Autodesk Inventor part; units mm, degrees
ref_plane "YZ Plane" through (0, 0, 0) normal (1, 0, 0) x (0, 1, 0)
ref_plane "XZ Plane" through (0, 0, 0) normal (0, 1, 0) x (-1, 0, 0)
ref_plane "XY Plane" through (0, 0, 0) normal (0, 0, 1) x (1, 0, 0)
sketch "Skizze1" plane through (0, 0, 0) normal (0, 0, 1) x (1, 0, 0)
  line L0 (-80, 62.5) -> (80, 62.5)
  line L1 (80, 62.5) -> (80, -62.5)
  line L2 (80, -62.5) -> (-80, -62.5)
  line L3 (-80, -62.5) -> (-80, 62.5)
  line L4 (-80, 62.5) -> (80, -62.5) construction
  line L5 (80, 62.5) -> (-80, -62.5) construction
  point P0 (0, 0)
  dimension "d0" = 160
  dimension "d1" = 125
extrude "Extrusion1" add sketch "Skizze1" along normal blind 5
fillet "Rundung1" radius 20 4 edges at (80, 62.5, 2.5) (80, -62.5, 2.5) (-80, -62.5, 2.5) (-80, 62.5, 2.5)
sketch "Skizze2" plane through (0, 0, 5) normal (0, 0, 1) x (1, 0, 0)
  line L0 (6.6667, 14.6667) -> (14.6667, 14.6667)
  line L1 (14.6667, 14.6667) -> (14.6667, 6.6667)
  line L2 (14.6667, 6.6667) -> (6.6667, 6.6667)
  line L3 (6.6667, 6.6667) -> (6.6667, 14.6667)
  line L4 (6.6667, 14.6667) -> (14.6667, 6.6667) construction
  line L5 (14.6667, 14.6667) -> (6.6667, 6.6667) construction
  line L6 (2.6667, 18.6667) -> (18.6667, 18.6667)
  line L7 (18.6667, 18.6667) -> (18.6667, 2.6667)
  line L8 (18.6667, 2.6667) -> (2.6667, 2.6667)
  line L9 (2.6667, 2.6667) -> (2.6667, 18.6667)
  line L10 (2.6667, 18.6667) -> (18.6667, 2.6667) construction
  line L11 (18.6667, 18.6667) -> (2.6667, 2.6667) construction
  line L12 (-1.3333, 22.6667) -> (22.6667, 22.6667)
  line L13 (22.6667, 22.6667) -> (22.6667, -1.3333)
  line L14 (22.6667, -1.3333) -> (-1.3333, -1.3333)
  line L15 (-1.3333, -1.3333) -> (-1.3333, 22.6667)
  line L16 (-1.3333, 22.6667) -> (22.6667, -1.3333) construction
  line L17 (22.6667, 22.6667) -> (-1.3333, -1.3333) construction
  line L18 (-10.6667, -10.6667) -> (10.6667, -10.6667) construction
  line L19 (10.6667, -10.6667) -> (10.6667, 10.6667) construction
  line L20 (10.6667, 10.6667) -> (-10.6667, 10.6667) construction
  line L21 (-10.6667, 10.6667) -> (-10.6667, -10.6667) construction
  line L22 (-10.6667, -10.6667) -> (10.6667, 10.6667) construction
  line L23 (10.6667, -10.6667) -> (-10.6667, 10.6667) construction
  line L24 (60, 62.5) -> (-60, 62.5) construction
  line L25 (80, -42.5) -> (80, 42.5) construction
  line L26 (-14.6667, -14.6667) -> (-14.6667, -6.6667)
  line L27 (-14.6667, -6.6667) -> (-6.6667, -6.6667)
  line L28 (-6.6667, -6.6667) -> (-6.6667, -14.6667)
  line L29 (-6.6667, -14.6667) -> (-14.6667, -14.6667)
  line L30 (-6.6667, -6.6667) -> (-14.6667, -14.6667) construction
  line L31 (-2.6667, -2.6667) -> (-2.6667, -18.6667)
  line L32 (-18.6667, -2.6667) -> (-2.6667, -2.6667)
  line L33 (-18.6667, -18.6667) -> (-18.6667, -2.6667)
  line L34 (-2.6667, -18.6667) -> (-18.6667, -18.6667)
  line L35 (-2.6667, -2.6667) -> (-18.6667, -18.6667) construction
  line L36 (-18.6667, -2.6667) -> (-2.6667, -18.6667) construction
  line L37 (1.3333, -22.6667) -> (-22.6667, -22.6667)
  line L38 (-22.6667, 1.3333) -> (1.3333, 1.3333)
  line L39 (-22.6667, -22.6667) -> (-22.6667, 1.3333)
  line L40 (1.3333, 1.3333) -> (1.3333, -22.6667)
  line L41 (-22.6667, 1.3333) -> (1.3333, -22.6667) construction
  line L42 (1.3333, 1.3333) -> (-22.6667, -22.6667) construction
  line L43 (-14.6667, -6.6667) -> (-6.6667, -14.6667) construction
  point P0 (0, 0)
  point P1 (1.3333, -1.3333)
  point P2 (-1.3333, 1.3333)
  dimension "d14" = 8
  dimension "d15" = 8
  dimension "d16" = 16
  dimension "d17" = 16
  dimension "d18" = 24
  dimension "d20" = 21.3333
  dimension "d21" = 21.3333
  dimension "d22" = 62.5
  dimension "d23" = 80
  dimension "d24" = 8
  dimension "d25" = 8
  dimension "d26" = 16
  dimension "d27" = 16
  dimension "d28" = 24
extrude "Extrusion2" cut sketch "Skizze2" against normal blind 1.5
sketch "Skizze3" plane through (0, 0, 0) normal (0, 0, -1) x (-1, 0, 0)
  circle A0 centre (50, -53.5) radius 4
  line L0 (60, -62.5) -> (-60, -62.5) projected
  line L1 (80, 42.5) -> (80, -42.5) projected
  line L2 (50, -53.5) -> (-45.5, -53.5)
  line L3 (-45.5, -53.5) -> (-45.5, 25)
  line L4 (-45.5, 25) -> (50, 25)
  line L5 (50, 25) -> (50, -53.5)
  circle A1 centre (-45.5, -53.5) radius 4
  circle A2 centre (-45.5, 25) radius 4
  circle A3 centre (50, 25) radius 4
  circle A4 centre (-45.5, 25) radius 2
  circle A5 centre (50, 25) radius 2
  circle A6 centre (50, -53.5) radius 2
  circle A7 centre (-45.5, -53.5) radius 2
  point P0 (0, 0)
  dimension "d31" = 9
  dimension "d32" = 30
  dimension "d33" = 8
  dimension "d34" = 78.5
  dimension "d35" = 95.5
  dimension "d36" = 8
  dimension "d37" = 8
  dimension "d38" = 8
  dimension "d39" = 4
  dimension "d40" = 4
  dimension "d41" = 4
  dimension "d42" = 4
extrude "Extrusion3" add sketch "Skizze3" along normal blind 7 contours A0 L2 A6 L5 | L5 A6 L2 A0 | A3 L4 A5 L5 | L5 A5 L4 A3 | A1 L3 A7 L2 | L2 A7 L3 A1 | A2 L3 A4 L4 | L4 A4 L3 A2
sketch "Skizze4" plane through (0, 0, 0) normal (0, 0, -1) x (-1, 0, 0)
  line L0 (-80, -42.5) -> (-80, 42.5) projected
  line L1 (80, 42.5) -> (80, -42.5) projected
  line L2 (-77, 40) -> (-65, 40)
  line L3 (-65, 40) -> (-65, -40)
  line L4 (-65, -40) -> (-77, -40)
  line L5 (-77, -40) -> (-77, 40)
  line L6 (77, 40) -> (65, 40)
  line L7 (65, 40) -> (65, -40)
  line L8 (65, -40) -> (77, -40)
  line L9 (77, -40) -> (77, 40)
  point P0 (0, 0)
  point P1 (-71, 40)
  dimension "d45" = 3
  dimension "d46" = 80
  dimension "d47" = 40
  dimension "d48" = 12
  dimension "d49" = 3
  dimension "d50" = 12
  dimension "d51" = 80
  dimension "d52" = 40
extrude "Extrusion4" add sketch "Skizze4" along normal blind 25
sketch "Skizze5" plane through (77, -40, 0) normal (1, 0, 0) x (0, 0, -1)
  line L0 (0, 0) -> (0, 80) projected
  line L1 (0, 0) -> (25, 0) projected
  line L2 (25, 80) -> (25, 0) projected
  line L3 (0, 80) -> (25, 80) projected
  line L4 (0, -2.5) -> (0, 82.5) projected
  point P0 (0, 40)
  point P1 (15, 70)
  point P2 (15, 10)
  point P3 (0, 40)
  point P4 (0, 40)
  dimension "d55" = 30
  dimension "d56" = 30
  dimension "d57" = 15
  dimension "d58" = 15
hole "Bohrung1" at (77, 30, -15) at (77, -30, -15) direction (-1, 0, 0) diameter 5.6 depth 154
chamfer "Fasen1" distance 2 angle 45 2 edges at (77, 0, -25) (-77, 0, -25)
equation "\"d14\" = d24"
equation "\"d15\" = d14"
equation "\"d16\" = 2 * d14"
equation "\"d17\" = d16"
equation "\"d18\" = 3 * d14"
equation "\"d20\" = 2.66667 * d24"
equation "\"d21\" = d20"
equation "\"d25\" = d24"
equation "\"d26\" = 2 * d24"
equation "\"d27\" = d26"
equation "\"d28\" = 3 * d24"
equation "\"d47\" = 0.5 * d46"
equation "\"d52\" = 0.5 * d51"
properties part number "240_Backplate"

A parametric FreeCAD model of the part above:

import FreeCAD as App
import Part
import Sketcher
from FreeCAD import Vector


def edges_at(feature, points):
    """Names of the edges that pass closest to the given points."""
    edges = feature.Shape.Edges
    near = lambda p: min(range(len(edges)), key=lambda i: edges[i].distToShape(Part.Vertex(*p))[0])
    return sorted({f"Edge{near(p) + 1}" for p in points})

doc = App.newDocument("Part")
body = doc.addObject("PartDesign::Body", "Body")

# Sketch on XY plane
sketch1 = body.newObject("Sketcher::SketchObject", "Sketch")
sketch1.AttachmentSupport = (doc.getObject("XY_Plane"), [""])
sketch1.MapMode = "FlatFace"
sketch1.addGeometry([
    Part.LineSegment(Vector(80, 62.5, 0), Vector(-80, 62.5, 0)),
    Part.LineSegment(Vector(-80, 62.5, 0), Vector(-80, -62.5, 0)),
    Part.LineSegment(Vector(-80, -62.5, 0), Vector(80, -62.5, 0)),
    Part.LineSegment(Vector(80, -62.5, 0), Vector(80, 62.5, 0)),
], False)
sketch1.addConstraint([
    Sketcher.Constraint("Coincident", 0, 2, 1, 1),
    Sketcher.Constraint("Coincident", 1, 2, 2, 1),
    Sketcher.Constraint("Coincident", 2, 2, 3, 1),
    Sketcher.Constraint("Coincident", 3, 2, 0, 1),
    Sketcher.Constraint("Horizontal", 0),
    Sketcher.Constraint("Vertical", 1),
    Sketcher.Constraint("Horizontal", 2),
    Sketcher.Constraint("Vertical", 3),
    Sketcher.Constraint("Symmetric", 0, 2, 2, 2, -1, 1),
    Sketcher.Constraint("DistanceX", 0, 2, 0, 1, 160.0),
    Sketcher.Constraint("DistanceY", 1, 2, 1, 1, 125.0),
])
pad1 = body.newObject("PartDesign::Pad", "Pad")
pad1.Profile = sketch1
pad1.Length = 5
doc.recompute()

fillet = body.newObject("PartDesign::Fillet", "Fillet")
fillet.Base = (pad1, edges_at(pad1, [
    (80, 62.5, 2.5),
    (80, -62.5, 2.5),
    (-80, -62.5, 2.5),
    (-80, 62.5, 2.5),
]))
fillet.Radius = 20

# Sketch on XY plane
sketch2 = body.newObject("Sketcher::SketchObject", "Sketch001")
sketch2.AttachmentSupport = (doc.getObject("XY_Plane"), [""])
sketch2.MapMode = "FlatFace"
sketch2.AttachmentOffset = App.Placement(Vector(0, 0, 5), App.Rotation())
sketch2.addGeometry([
    Part.LineSegment(Vector(14.6667, 14.6667, 0), Vector(6.6667, 14.6667, 0)),  # 0
    Part.LineSegment(Vector(6.6667, 14.6667, 0), Vector(6.6667, 6.6667, 0)),  # 1
    Part.LineSegment(Vector(6.6667, 6.6667, 0), Vector(14.6667, 6.6667, 0)),  # 2
    Part.LineSegment(Vector(14.6667, 6.6667, 0), Vector(14.6667, 14.6667, 0)),  # 3
    Part.LineSegment(Vector(22.6667, 22.6667, 0), Vector(-1.3333, 22.6667, 0)),  # 4
    Part.LineSegment(Vector(-1.3333, 22.6667, 0), Vector(-1.3333, 1.3333, 0)),  # 5
    Part.LineSegment(Vector(-1.3333, 1.3333, 0), Vector(-22.6667, 1.3333, 0)),  # 6
    Part.LineSegment(Vector(-22.6667, 1.3333, 0), Vector(-22.6667, -22.6667, 0)),  # 7
    Part.LineSegment(Vector(-22.6667, -22.6667, 0), Vector(1.3333, -22.6667, 0)),  # 8
    Part.LineSegment(Vector(1.3333, -22.6667, 0), Vector(1.3333, -1.3333, 0)),  # 9
    Part.LineSegment(Vector(1.3333, -1.3333, 0), Vector(22.6667, -1.3333, 0)),  # 10
    Part.LineSegment(Vector(22.6667, -1.3333, 0), Vector(22.6667, 22.6667, 0)),  # 11
    Part.LineSegment(Vector(2.6667, 2.6667, 0), Vector(2.6667, 18.6667, 0)),  # 12
    Part.LineSegment(Vector(2.6667, 18.6667, 0), Vector(18.6667, 18.6667, 0)),  # 13
    Part.LineSegment(Vector(18.6667, 18.6667, 0), Vector(18.6667, 2.6667, 0)),  # 14
    Part.LineSegment(Vector(18.6667, 2.6667, 0), Vector(2.6667, 2.6667, 0)),  # 15
    Part.LineSegment(Vector(-2.6667, -18.6667, 0), Vector(-18.6667, -18.6667, 0)),  # 16
    Part.LineSegment(Vector(-18.6667, -18.6667, 0), Vector(-18.6667, -2.6667, 0)),  # 17
    Part.LineSegment(Vector(-18.6667, -2.6667, 0), Vector(-2.6667, -2.6667, 0)),  # 18
    Part.LineSegment(Vector(-2.6667, -2.6667, 0), Vector(-2.6667, -18.6667, 0)),  # 19
    Part.LineSegment(Vector(-14.6667, -6.6667, 0), Vector(-14.6667, -14.6667, 0)),  # 20
    Part.LineSegment(Vector(-14.6667, -14.6667, 0), Vector(-6.6667, -14.6667, 0)),  # 21
    Part.LineSegment(Vector(-6.6667, -14.6667, 0), Vector(-6.6667, -6.6667, 0)),  # 22
    Part.LineSegment(Vector(-6.6667, -6.6667, 0), Vector(-14.6667, -6.6667, 0)),  # 23
], False)
sketch2.addConstraint([
    Sketcher.Constraint("Coincident", 0, 2, 1, 1),
    Sketcher.Constraint("Coincident", 1, 2, 2, 1),
    Sketcher.Constraint("Coincident", 2, 2, 3, 1),
    Sketcher.Constraint("Coincident", 3, 2, 0, 1),
    Sketcher.Constraint("Coincident", 4, 2, 5, 1),
    Sketcher.Constraint("Coincident", 5, 2, 6, 1),
    Sketcher.Constraint("Coincident", 6, 2, 7, 1),
    Sketcher.Constraint("Coincident", 7, 2, 8, 1),
    Sketcher.Constraint("Coincident", 8, 2, 9, 1),
    Sketcher.Constraint("Coincident", 9, 2, 10, 1),
    Sketcher.Constraint("Coincident", 10, 2, 11, 1),
    Sketcher.Constraint("Coincident", 11, 2, 4, 1),
    Sketcher.Constraint("Coincident", 12, 2, 13, 1),
    Sketcher.Constraint("Coincident", 13, 2, 14, 1),
    Sketcher.Constraint("Coincident", 14, 2, 15, 1),
    Sketcher.Constraint("Coincident", 15, 2, 12, 1),
    Sketcher.Constraint("Coincident", 16, 2, 17, 1),
    Sketcher.Constraint("Coincident", 17, 2, 18, 1),
    Sketcher.Constraint("Coincident", 18, 2, 19, 1),
    Sketcher.Constraint("Coincident", 19, 2, 16, 1),
    Sketcher.Constraint("Coincident", 20, 2, 21, 1),
    Sketcher.Constraint("Coincident", 21, 2, 22, 1),
    Sketcher.Constraint("Coincident", 22, 2, 23, 1),
    Sketcher.Constraint("Coincident", 23, 2, 20, 1),
    Sketcher.Constraint("Horizontal", 0),
    Sketcher.Constraint("Vertical", 1),
    Sketcher.Constraint("Horizontal", 2),
    Sketcher.Constraint("Vertical", 3),
    Sketcher.Constraint("Horizontal", 4),
    Sketcher.Constraint("Vertical", 5),
    Sketcher.Constraint("Horizontal", 6),
    Sketcher.Constraint("Vertical", 7),
    Sketcher.Constraint("Horizontal", 8),
    Sketcher.Constraint("Vertical", 9),
    Sketcher.Constraint("Horizontal", 10),
    Sketcher.Constraint("Vertical", 11),
    Sketcher.Constraint("Vertical", 12),
    Sketcher.Constraint("Horizontal", 13),
    Sketcher.Constraint("Vertical", 14),
    Sketcher.Constraint("Horizontal", 15),
    Sketcher.Constraint("Horizontal", 16),
    Sketcher.Constraint("Vertical", 17),
    Sketcher.Constraint("Horizontal", 18),
    Sketcher.Constraint("Vertical", 19),
    Sketcher.Constraint("Vertical", 20),
    Sketcher.Constraint("Horizontal", 21),
    Sketcher.Constraint("Vertical", 22),
    Sketcher.Constraint("Horizontal", 23),
    Sketcher.Constraint("Symmetric", 4, 2, 8, 2, -1, 1),
    Sketcher.Constraint("Symmetric", 6, 2, 10, 2, -1, 1),
    Sketcher.Constraint("Symmetric", 13, 2, 16, 2, -1, 1),
    Sketcher.Constraint("Symmetric", 15, 2, 18, 2, -1, 1),
    Sketcher.Constraint("Symmetric", 3, 2, 20, 2, -1, 1),
    Sketcher.Constraint("Symmetric", 1, 2, 22, 2, -1, 1),
    Sketcher.Constraint("Equal", 23, 1),
    Sketcher.Constraint("Equal", 10, 5),
    Sketcher.Constraint("Equal", 8, 7),
    Sketcher.Constraint("Equal", 18, 12),
    Sketcher.Constraint("DistanceX", 0, 2, 0, 1, 8.0),
    Sketcher.Constraint("DistanceX", 4, 2, 4, 1, 24.0),
    Sketcher.Constraint("DistanceX", 13, 1, 13, 2, 16.0),
    Sketcher.Constraint("DistanceX", 4, 2, 0, 2, 8.0),
    Sketcher.Constraint("DistanceY", 0, 2, 4, 2, 8.0),
    Sketcher.Constraint("DistanceX", 6, 2, 6, 1, 21.3334),
    Sketcher.Constraint("DistanceX", 12, 2, 0, 2, 4.0),
    Sketcher.Constraint("DistanceY", 0, 2, 12, 2, 4.0),
])
pocket1 = body.newObject("PartDesign::Pocket", "Pocket")
pocket1.Profile = sketch2
pocket1.Length = 1.5

# Sketch on XY plane
sketch3 = body.newObject("Sketcher::SketchObject", "Sketch002")
sketch3.AttachmentSupport = (doc.getObject("XY_Plane"), [""])
sketch3.MapMode = "FlatFace"
sketch3.addGeometry([
    Part.Circle(Vector(-50, -53.5, 0), Vector(0, 0, 1), 4),  # 0
    Part.Circle(Vector(-50, -53.5, 0), Vector(0, 0, 1), 2),  # 1
    Part.Circle(Vector(-50, 25, 0), Vector(0, 0, 1), 4),  # 2
    Part.Circle(Vector(-50, 25, 0), Vector(0, 0, 1), 2),  # 3
    Part.Circle(Vector(45.5, -53.5, 0), Vector(0, 0, 1), 4),  # 4
    Part.Circle(Vector(45.5, -53.5, 0), Vector(0, 0, 1), 2),  # 5
    Part.Circle(Vector(45.5, 25, 0), Vector(0, 0, 1), 4),  # 6
    Part.Circle(Vector(45.5, 25, 0), Vector(0, 0, 1), 2),  # 7
], False)
sketch3.addConstraint([
    Sketcher.Constraint("Coincident", 1, 3, 0, 3),
    Sketcher.Constraint("Coincident", 3, 3, 2, 3),
    Sketcher.Constraint("Coincident", 5, 3, 4, 3),
    Sketcher.Constraint("Coincident", 7, 3, 6, 3),
    Sketcher.Constraint("Equal", 0, 2),
    Sketcher.Constraint("Equal", 1, 3),
    Sketcher.Constraint("Equal", 2, 4),
    Sketcher.Constraint("Equal", 3, 5),
    Sketcher.Constraint("Equal", 4, 6),
    Sketcher.Constraint("Equal", 5, 7),
    Sketcher.Constraint("Horizontal", 1, 3, 4, 3),
    Sketcher.Constraint("Horizontal", 3, 3, 6, 3),
    Sketcher.Constraint("Vertical", 1, 3, 2, 3),
    Sketcher.Constraint("Vertical", 5, 3, 6, 3),
    Sketcher.Constraint("Diameter", 0, 8.0),
    Sketcher.Constraint("Diameter", 1, 4.0),
    Sketcher.Constraint("DistanceY", 0, 3, 2, 3, 78.5),
    Sketcher.Constraint("DistanceX", 0, 3, 4, 3, 95.5),
    Sketcher.Constraint("DistanceX", 0, 3, -1, 1, 50.0),
    Sketcher.Constraint("DistanceY", -1, 1, 2, 3, 25.0),
])
pad2 = body.newObject("PartDesign::Pad", "Pad001")
pad2.Profile = sketch3
pad2.Length = 7
pad2.Reversed = True

# Sketch on XY plane
sketch4 = body.newObject("Sketcher::SketchObject", "Sketch003")
sketch4.AttachmentSupport = (doc.getObject("XY_Plane"), [""])
sketch4.MapMode = "FlatFace"
sketch4.addGeometry([
    Part.LineSegment(Vector(65, 40, 0), Vector(77, 40, 0)),  # 0
    Part.LineSegment(Vector(77, 40, 0), Vector(77, -40, 0)),  # 1
    Part.LineSegment(Vector(77, -40, 0), Vector(65, -40, 0)),  # 2
    Part.LineSegment(Vector(65, -40, 0), Vector(65, 40, 0)),  # 3
    Part.LineSegment(Vector(-77, -40, 0), Vector(-77, 40, 0)),  # 4
    Part.LineSegment(Vector(-77, 40, 0), Vector(-65, 40, 0)),  # 5
    Part.LineSegment(Vector(-65, 40, 0), Vector(-65, -40, 0)),  # 6
    Part.LineSegment(Vector(-65, -40, 0), Vector(-77, -40, 0)),  # 7
], False)
sketch4.addConstraint([
    Sketcher.Constraint("Coincident", 0, 2, 1, 1),
    Sketcher.Constraint("Coincident", 1, 2, 2, 1),
    Sketcher.Constraint("Coincident", 2, 2, 3, 1),
    Sketcher.Constraint("Coincident", 3, 2, 0, 1),
    Sketcher.Constraint("Coincident", 4, 2, 5, 1),
    Sketcher.Constraint("Coincident", 5, 2, 6, 1),
    Sketcher.Constraint("Coincident", 6, 2, 7, 1),
    Sketcher.Constraint("Coincident", 7, 2, 4, 1),
    Sketcher.Constraint("Horizontal", 0),
    Sketcher.Constraint("Vertical", 1),
    Sketcher.Constraint("Horizontal", 2),
    Sketcher.Constraint("Vertical", 3),
    Sketcher.Constraint("Vertical", 4),
    Sketcher.Constraint("Horizontal", 5),
    Sketcher.Constraint("Vertical", 6),
    Sketcher.Constraint("Horizontal", 7),
    Sketcher.Constraint("Symmetric", 1, 2, 4, 2, -1, 1),
    Sketcher.Constraint("Symmetric", 3, 2, 6, 2, -1, 1),
    Sketcher.Constraint("Horizontal", 3, 2, 4, 2),
    Sketcher.Constraint("DistanceX", 0, 1, 0, 2, 12.0),
    Sketcher.Constraint("DistanceY", 1, 2, 1, 1, 80.0),
    Sketcher.Constraint("DistanceX", -1, 1, 0, 2, 77.0),
])
pad3 = body.newObject("PartDesign::Pad", "Pad002")
pad3.Profile = sketch4
pad3.Length = 25
pad3.Reversed = True

# Sketch on YZ plane
sketch5 = body.newObject("Sketcher::SketchObject", "Sketch004")
sketch5.AttachmentSupport = (doc.getObject("YZ_Plane"), [""])
sketch5.MapMode = "FlatFace"
sketch5.AttachmentOffset = App.Placement(Vector(0, 0, 77), App.Rotation())
sketch5.addGeometry([
    Part.Circle(Vector(30, -15, 0), Vector(0, 0, 1), 2.8),
    Part.Circle(Vector(-30, -15, 0), Vector(0, 0, 1), 2.8),
], False)
sketch5.addConstraint([
    Sketcher.Constraint("Equal", 0, 1),
    Sketcher.Constraint("Symmetric", 0, 3, 1, 3, -2),
    Sketcher.Constraint("Diameter", 0, 5.6),
    Sketcher.Constraint("DistanceX", -1, 1, 0, 3, 30.0),
    Sketcher.Constraint("DistanceY", 0, 3, -1, 1, 15.0),
])
doc.recompute()
hole = body.newObject("PartDesign::Hole", "Hole")
hole.Profile = sketch5
hole.ThreadType = "None"
hole.Diameter = 5.6
hole.DepthType = "Dimension"
hole.Depth = 154
hole.DrillPoint = "Flat"
doc.recompute()

chamfer = body.newObject("PartDesign::Chamfer", "Chamfer")
chamfer.Base = (hole, edges_at(hole, [(77, 0, -25), (-77, 0, -25)]))
chamfer.Size = 2

doc.recompute()
